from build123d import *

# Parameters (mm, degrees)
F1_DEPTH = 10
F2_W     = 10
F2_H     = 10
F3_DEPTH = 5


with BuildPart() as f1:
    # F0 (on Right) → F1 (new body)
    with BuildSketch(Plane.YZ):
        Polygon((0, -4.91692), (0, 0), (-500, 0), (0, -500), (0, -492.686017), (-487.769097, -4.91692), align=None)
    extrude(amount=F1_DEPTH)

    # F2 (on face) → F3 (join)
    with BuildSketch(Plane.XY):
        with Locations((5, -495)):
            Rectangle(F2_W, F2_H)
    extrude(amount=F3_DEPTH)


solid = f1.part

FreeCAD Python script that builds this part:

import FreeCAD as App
import Part
import Sketcher

V = App.Vector
Q = App.Units.Quantity


def add_polygon(sketch, points):
    """Adds a closed chain of lines whose ends are joined by coincident constraints."""
    first, n = sketch.GeometryCount, len(points)
    for a, b in zip(points, points[1:] + points[:1]):
        sketch.addGeometry(Part.LineSegment(App.Vector(*a, 0), App.Vector(*b, 0)), False)
    for i in range(n):
        sketch.addConstraint(Sketcher.Constraint("Coincident", first + i, 2, first + (i + 1) % n, 1))

doc = App.newDocument("Part")
body = doc.addObject("PartDesign::Body", "Body")

# Sketch on YZ plane
sketch1 = body.newObject("Sketcher::SketchObject", "Sketch")
sketch1.AttachmentSupport = (doc.getObject("YZ_Plane"), [""])
sketch1.MapMode = "FlatFace"
add_polygon(sketch1, [(0, -4.9), (0, 0), (-500, 0), (0, -500), (0, -492.7), (-487.8, -4.9)])  # lines 0-5
sketch1.addConstraint([
    Sketcher.Constraint("Vertical", 0),
    Sketcher.Constraint("Horizontal", 1),
    Sketcher.Constraint("Vertical", 3),
    Sketcher.Constraint("Horizontal", 5),
    Sketcher.Constraint("Coincident", 0, 2, -1, 1),
    Sketcher.Constraint("PointOnObject", 2, 2, -2),
    Sketcher.Constraint("Parallel", 2, 4),
    Sketcher.Constraint("DistanceX", 1, 2, 1, 1, Q("500 mm")),
    Sketcher.Constraint("Angle", 2, Q("-45 deg")),
    Sketcher.Constraint("DistanceY", 0, 1, 0, 2, Q("4.91692 mm")),
    Sketcher.Constraint("DistanceX", 5, 1, 5, 2, Q("487.769097 mm")),
])
pad1 = body.newObject("PartDesign::Pad", "Pad")
pad1.Profile = sketch1
pad1.Length = 10

# Sketch on XY plane
sketch2 = body.newObject("Sketcher::SketchObject", "Sketch001")
sketch2.AttachmentSupport = (doc.getObject("XY_Plane"), [""])
sketch2.MapMode = "FlatFace"
add_polygon(sketch2, [(0, -490), (0, -500), (10, -500), (10, -490)])  # lines 0-3
sketch2.addConstraint([
    Sketcher.Constraint("Vertical", 0),
    Sketcher.Constraint("Horizontal", 1),
    Sketcher.Constraint("Vertical", 2),
    Sketcher.Constraint("Horizontal", 3),
    Sketcher.Constraint("PointOnObject", 0, 2, -2),
    Sketcher.Constraint("Equal", 3, 0),
    Sketcher.Constraint("DistanceX", 1, 1, 1, 2, Q("10 mm")),
    Sketcher.Constraint("DistanceY", 0, 2, -1, 1, Q("500 mm")),
])
pad2 = body.newObject("PartDesign::Pad", "Pad001")
pad2.Profile = sketch2
pad2.Length = 5

doc.recompute()
